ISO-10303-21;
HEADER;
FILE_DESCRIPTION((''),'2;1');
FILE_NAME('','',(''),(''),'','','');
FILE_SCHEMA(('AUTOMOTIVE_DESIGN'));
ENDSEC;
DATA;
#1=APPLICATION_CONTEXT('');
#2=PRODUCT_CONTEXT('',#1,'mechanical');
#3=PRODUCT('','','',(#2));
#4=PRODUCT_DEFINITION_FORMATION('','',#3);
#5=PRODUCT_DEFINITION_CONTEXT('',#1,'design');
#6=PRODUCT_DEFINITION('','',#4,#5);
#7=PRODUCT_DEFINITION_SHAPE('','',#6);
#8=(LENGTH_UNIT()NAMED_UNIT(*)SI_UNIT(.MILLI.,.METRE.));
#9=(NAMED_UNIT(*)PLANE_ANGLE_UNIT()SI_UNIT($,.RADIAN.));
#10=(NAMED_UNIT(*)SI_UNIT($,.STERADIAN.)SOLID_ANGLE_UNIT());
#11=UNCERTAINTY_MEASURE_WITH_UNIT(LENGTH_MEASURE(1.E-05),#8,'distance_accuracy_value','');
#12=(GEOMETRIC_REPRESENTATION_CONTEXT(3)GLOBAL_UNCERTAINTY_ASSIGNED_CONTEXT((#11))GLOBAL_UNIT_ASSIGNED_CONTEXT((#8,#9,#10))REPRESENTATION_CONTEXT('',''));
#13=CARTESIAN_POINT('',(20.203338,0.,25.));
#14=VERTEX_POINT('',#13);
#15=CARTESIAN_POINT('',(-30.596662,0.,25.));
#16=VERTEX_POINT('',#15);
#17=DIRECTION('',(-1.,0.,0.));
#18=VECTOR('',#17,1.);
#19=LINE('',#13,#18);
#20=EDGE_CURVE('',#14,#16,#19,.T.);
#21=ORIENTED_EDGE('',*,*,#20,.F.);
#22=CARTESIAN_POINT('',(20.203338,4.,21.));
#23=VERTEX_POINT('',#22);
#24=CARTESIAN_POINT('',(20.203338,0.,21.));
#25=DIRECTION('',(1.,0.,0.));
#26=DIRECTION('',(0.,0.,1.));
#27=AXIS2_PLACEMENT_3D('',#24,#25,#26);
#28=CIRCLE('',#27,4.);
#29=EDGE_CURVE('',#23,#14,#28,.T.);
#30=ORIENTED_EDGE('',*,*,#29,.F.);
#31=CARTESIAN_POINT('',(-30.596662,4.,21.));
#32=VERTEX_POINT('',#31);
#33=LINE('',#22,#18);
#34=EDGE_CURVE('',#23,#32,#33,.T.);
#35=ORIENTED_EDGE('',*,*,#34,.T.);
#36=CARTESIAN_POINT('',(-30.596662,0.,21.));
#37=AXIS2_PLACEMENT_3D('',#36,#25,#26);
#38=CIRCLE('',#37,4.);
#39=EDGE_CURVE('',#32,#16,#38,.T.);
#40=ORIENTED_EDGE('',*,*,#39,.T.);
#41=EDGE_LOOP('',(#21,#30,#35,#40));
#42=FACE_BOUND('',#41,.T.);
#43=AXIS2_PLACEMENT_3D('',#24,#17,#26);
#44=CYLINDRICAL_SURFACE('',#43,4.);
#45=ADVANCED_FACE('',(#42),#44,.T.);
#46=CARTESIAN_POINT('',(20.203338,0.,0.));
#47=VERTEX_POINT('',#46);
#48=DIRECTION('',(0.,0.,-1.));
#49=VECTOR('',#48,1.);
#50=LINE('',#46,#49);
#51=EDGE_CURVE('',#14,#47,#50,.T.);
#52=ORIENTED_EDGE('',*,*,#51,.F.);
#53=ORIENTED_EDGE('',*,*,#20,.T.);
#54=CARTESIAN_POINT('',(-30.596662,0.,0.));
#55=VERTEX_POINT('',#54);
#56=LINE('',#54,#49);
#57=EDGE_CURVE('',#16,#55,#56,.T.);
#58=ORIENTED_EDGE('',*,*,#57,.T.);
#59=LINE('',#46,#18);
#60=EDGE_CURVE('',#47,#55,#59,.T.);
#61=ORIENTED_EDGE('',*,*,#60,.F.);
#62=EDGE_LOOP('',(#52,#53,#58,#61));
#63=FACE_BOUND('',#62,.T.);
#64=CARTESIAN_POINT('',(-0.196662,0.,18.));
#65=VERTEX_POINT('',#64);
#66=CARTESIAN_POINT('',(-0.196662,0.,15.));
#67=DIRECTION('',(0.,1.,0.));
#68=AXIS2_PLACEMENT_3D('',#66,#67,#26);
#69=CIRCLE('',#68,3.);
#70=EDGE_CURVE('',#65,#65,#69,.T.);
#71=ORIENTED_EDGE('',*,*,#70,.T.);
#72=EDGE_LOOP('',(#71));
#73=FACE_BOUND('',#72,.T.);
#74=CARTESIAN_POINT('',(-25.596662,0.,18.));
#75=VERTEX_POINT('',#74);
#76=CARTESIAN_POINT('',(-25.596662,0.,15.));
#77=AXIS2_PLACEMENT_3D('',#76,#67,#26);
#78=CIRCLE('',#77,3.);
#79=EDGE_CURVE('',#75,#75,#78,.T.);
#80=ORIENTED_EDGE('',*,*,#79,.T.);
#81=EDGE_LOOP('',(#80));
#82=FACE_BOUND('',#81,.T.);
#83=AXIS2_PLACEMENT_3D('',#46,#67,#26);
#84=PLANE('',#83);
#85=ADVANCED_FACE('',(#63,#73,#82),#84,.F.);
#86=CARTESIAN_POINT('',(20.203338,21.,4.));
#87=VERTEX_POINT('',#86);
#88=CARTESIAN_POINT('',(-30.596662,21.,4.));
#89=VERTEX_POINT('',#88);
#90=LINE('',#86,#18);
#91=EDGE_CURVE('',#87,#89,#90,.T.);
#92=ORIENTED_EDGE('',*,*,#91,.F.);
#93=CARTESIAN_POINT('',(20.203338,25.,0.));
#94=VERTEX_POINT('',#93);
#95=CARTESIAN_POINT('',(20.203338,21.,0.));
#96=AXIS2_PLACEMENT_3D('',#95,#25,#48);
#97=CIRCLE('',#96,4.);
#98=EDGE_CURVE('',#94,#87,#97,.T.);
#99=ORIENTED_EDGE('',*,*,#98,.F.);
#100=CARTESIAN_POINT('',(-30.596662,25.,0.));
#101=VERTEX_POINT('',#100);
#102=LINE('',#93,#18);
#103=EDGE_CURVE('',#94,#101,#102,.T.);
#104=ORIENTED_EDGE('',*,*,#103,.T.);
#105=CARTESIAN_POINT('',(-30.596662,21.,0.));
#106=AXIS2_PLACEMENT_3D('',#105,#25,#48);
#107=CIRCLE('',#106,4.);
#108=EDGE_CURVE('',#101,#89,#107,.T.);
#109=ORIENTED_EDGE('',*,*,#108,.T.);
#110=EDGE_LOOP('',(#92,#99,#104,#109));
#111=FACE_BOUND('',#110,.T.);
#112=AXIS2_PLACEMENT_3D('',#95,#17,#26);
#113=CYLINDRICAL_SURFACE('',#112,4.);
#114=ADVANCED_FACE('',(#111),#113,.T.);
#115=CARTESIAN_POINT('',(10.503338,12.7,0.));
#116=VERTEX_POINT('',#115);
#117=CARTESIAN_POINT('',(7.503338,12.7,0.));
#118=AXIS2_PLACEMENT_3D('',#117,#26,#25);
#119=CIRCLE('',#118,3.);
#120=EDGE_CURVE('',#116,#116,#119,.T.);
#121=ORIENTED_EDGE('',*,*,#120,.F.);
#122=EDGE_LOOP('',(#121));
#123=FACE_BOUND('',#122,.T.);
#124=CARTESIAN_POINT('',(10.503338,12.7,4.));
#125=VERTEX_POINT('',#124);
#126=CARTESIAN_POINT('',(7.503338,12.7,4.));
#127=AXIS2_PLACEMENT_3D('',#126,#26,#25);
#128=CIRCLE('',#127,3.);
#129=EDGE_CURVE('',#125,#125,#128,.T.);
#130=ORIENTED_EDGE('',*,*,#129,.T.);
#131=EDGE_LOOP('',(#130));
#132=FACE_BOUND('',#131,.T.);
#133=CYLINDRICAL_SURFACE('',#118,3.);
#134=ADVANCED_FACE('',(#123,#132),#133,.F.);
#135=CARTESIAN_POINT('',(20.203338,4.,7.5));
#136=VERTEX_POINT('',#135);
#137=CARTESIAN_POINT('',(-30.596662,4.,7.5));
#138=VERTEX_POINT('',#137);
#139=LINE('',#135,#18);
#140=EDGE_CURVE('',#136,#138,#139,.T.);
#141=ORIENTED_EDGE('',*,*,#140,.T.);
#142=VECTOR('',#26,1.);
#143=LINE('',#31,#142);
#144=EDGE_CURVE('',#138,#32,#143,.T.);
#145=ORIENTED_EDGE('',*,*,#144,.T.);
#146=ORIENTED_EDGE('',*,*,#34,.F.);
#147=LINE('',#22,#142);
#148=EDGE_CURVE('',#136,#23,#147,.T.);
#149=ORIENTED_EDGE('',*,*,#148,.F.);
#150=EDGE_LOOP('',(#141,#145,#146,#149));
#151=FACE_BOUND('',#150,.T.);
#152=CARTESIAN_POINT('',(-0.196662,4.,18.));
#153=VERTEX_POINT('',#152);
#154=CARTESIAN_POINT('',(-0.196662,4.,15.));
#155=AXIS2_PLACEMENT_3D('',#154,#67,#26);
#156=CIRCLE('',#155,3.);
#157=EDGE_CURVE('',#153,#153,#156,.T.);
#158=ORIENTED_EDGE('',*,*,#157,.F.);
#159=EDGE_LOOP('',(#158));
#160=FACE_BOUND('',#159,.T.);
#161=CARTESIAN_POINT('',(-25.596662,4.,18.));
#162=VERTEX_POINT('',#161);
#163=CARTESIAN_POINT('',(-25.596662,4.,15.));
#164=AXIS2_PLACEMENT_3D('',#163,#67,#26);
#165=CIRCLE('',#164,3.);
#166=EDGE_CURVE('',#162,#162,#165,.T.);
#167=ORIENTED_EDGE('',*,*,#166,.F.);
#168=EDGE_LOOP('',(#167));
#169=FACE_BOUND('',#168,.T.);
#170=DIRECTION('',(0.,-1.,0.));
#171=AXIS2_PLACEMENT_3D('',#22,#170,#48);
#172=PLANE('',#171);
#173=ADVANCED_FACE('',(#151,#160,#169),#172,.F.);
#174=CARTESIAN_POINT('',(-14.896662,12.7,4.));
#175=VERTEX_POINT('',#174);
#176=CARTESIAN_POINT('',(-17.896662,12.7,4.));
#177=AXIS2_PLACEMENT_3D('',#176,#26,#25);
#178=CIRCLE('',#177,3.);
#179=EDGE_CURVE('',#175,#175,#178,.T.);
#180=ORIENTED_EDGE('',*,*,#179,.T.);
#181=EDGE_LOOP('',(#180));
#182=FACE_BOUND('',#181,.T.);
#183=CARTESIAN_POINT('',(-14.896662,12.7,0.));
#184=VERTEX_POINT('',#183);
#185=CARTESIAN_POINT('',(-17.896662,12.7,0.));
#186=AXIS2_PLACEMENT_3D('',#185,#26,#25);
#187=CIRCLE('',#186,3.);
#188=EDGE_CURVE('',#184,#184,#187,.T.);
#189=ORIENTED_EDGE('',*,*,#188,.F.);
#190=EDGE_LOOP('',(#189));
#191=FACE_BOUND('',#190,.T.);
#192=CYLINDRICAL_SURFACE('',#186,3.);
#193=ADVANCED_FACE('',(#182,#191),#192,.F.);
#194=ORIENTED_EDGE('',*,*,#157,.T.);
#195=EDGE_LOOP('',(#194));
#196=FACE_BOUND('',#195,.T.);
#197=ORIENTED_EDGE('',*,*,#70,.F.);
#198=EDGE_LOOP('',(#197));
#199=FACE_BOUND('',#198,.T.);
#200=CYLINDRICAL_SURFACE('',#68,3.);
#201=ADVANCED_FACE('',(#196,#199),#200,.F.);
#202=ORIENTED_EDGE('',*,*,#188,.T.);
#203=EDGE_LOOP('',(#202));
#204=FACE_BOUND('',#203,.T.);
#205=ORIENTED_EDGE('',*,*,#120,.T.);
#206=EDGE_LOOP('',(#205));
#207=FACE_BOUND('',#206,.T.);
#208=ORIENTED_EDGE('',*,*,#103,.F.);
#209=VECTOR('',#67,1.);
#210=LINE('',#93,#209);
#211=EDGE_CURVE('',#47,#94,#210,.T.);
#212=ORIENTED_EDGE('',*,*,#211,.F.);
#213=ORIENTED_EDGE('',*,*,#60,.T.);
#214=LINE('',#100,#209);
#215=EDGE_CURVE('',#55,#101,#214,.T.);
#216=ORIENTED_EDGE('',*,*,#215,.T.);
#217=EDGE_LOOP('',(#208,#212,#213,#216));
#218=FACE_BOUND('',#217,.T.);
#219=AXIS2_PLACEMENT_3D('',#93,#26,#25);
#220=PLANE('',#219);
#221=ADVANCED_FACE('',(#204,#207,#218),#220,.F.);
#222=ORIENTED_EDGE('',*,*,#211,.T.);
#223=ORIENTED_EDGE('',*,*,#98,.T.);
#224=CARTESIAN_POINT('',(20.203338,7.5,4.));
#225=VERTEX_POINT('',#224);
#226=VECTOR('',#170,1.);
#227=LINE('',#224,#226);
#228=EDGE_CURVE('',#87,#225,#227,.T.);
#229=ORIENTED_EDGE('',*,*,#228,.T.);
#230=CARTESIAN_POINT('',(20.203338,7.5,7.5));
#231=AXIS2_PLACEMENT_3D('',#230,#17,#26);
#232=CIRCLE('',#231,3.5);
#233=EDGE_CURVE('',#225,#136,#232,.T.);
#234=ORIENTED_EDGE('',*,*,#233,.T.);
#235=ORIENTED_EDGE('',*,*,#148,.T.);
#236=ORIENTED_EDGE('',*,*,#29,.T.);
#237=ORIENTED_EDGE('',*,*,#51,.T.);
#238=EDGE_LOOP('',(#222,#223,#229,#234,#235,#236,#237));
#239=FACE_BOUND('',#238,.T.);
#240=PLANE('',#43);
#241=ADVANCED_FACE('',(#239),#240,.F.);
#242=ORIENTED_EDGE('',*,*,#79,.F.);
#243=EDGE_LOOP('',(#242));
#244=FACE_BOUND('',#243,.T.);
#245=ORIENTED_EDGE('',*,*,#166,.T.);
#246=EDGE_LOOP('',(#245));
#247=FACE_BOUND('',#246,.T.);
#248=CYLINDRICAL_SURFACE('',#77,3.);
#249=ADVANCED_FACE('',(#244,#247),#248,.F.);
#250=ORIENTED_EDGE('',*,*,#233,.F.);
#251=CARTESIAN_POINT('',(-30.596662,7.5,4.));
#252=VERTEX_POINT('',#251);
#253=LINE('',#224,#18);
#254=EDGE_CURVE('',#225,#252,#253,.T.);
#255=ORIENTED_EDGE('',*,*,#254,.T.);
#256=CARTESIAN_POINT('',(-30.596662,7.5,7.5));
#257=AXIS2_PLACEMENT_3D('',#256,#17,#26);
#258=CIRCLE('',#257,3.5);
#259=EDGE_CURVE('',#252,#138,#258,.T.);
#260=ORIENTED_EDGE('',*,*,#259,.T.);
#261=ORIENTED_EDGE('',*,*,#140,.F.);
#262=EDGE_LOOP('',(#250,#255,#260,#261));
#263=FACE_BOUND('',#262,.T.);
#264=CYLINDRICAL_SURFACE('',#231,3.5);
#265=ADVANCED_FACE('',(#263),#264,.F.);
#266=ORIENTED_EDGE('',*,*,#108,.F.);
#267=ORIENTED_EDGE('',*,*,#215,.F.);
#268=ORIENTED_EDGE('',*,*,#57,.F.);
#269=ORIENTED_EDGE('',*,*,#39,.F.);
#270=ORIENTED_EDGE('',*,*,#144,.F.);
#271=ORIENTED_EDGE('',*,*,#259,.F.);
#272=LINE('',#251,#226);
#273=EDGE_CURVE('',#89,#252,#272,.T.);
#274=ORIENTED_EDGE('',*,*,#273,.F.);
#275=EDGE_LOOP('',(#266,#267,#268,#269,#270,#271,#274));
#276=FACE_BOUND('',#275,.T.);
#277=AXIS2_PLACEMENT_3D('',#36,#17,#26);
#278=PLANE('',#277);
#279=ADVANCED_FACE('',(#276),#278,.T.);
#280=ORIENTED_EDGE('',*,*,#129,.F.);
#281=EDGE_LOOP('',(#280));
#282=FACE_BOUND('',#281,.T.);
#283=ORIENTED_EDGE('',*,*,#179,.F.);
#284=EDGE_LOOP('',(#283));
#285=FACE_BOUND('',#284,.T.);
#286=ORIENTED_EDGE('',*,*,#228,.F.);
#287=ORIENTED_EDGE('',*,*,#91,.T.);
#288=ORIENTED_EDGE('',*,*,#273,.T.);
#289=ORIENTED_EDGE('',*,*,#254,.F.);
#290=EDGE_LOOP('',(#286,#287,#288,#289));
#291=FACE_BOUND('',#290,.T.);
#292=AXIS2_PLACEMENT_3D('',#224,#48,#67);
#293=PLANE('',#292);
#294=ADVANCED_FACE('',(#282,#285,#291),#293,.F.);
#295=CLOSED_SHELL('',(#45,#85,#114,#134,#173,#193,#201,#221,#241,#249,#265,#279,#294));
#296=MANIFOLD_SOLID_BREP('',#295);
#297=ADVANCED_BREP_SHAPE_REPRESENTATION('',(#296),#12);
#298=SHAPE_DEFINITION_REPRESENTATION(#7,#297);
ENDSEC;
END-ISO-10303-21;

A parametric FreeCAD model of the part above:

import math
import FreeCAD as App
import Part
import Sketcher

V = App.Vector

doc = App.newDocument("Part")
body = doc.addObject("PartDesign::Body", "Body")

# Sketch on YZ plane
sketch1 = body.newObject("Sketcher::SketchObject", "Sketch")
sketch1.AttachmentSupport = (doc.getObject("YZ_Plane"), [""])
sketch1.MapMode = "FlatFace"
sketch1.AttachmentOffset = App.Placement(V(0, 0, -30.596662), App.Rotation())
sketch1.addGeometry([
    Part.LineSegment(V(0, 25, 0), V(0, 0, 0)),  # 0
    Part.LineSegment(V(0, 0, 0), V(25, 0, 0)),  # 1
    Part.ArcOfCircle(Part.Circle(V(21, 0, 0), V(0, 0, 1), 4), math.radians(0), math.radians(90)),  # 2
    Part.LineSegment(V(21, 4, 0), V(7.5, 4, 0)),  # 3
    Part.ArcOfCircle(Part.Circle(V(7.5, 7.5, 0), V(0, 0, 1), 3.5), math.radians(-180), math.radians(-90)),  # 4
    Part.LineSegment(V(4, 7.5, 0), V(4, 21, 0)),  # 5
    Part.ArcOfCircle(Part.Circle(V(0, 21, 0), V(0, 0, 1), 4), math.radians(0), math.radians(90)),  # 6
], False)
sketch1.addConstraint([
    Sketcher.Constraint("Coincident", 0, 2, 1, 1),
    Sketcher.Constraint("Coincident", 1, 2, 2, 1),
    Sketcher.Constraint("Tangent", 2, 2, 3, 1),
    Sketcher.Constraint("Tangent", 3, 2, 4, 2),
    Sketcher.Constraint("Tangent", 4, 1, 5, 1),
    Sketcher.Constraint("Tangent", 5, 2, 6, 1),
    Sketcher.Constraint("Coincident", 6, 2, 0, 1),
    Sketcher.Constraint("Vertical", 0),
    Sketcher.Constraint("Horizontal", 1),
    Sketcher.Constraint("Horizontal", 3),
    Sketcher.Constraint("Vertical", 5),
    Sketcher.Constraint("Coincident", 0, 2, -1, 1),
    Sketcher.Constraint("Equal", 2, 6),
    Sketcher.Constraint("PointOnObject", 2, 3, -1),
    Sketcher.Constraint("PointOnObject", 6, 3, -2),
    Sketcher.Constraint("Equal", 1, 0),
    Sketcher.Constraint("Radius", 2, 4.0),
    Sketcher.Constraint("Radius", 4, 3.5),
    Sketcher.Constraint("DistanceX", 1, 1, 1, 2, 25.0),
])
pad1 = body.newObject("PartDesign::Pad", "Pad")
pad1.Profile = sketch1
pad1.Length = 50.8

# Sketch on XY plane
sketch2 = body.newObject("Sketcher::SketchObject", "Sketch001")
sketch2.AttachmentSupport = (doc.getObject("XY_Plane"), [""])
sketch2.MapMode = "FlatFace"
sketch2.AttachmentOffset = App.Placement(V(0, 0, 4), App.Rotation())
sketch2.addGeometry([
    Part.Circle(V(-17.9, 12.7, 0), V(0, 0, 1), 3),
    Part.Circle(V(7.5, 12.7, 0), V(0, 0, 1), 3),
], False)
sketch2.addConstraint([
    Sketcher.Constraint("Equal", 0, 1),
    Sketcher.Constraint("Horizontal", 0, 3, 1, 3),
    Sketcher.Constraint("Diameter", 0, 6.0),
    Sketcher.Constraint("DistanceY", -1, 1, 0, 3, 12.7),
    Sketcher.Constraint("DistanceX", 0, 3, 1, 3, 25.4),
    Sketcher.Constraint("DistanceX", 0, 3, -1, 1, 17.896662),
])
pocket1 = body.newObject("PartDesign::Pocket", "Pocket")
pocket1.Profile = sketch2
pocket1.Type = "ThroughAll"

# Sketch on XZ plane
sketch3 = body.newObject("Sketcher::SketchObject", "Sketch002")
sketch3.AttachmentSupport = (doc.getObject("XZ_Plane"), [""])
sketch3.MapMode = "FlatFace"
sketch3.AttachmentOffset = App.Placement(V(0, 0, -4), App.Rotation())
sketch3.addGeometry([
    Part.Circle(V(-25.6, 15, 0), V(0, 0, 1), 3),
    Part.Circle(V(-0.2, 15, 0), V(0, 0, 1), 3),
], False)
sketch3.addConstraint([
    Sketcher.Constraint("Equal", 0, 1),
    Sketcher.Constraint("Horizontal", 0, 3, 1, 3),
    Sketcher.Constraint("Diameter", 0, 6.0),
    Sketcher.Constraint("DistanceY", -1, 1, 0, 3, 15.0),
    Sketcher.Constraint("DistanceX", 0, 3, 1, 3, 25.4),
    Sketcher.Constraint("DistanceX", 0, 3, -1, 1, 25.596662),
])
pocket2 = body.newObject("PartDesign::Pocket", "Pocket001")
pocket2.Profile = sketch3
pocket2.Type = "ThroughAll"
pocket2.Reversed = True

doc.recompute()
